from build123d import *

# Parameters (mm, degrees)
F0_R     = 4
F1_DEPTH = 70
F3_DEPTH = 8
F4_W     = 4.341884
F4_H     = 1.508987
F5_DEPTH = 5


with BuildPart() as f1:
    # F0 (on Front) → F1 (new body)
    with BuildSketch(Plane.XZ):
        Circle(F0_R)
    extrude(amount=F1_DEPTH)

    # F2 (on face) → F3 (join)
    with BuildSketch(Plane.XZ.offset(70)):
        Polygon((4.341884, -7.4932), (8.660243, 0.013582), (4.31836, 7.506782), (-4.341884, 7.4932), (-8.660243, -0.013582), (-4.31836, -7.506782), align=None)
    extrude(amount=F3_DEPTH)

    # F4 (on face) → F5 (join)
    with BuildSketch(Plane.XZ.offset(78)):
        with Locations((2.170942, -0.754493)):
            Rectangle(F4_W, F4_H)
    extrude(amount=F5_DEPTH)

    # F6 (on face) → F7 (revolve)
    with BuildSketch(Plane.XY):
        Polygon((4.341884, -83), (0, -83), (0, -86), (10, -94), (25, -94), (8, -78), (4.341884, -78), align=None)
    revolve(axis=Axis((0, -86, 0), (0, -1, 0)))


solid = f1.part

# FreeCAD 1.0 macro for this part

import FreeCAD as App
import Part
import Sketcher

V = App.Vector


def add_polygon(sketch, points):
    """Adds a closed chain of lines whose ends are joined by coincident constraints."""
    first, n = sketch.GeometryCount, len(points)
    for a, b in zip(points, points[1:] + points[:1]):
        sketch.addGeometry(Part.LineSegment(App.Vector(*a, 0), App.Vector(*b, 0)), False)
    for i in range(n):
        sketch.addConstraint(Sketcher.Constraint("Coincident", first + i, 2, first + (i + 1) % n, 1))

doc = App.newDocument("Part")
body = doc.addObject("PartDesign::Body", "Body")

# Sketch on XZ plane
sketch1 = body.newObject("Sketcher::SketchObject", "Sketch")
sketch1.AttachmentSupport = (doc.getObject("XZ_Plane"), [""])
sketch1.MapMode = "FlatFace"
sketch1.addGeometry(Part.Circle(V(0, 0, 0), V(0, 0, 1), 4), False)
sketch1.addConstraint(Sketcher.Constraint("Coincident", 0, 3, -1, 1))
sketch1.addConstraint(Sketcher.Constraint("Diameter", 0, 8.0))
pad1 = body.newObject("PartDesign::Pad", "Pad")
pad1.Profile = sketch1
pad1.Length = 70

# Sketch on XZ plane
sketch2 = body.newObject("Sketcher::SketchObject", "Sketch001")
sketch2.AttachmentSupport = (doc.getObject("XZ_Plane"), [""])
sketch2.MapMode = "FlatFace"
sketch2.AttachmentOffset = App.Placement(V(0, 0, 70), App.Rotation())
add_polygon(sketch2, [(4, -7), (9, 0), (4, 8), (-4, 7), (-9, 0), (-4, -8)])  # lines 0-5
sketch2.addConstraint(Sketcher.Constraint("Symmetric", 0, 2, 3, 2, -1, 1))
sketch2.addConstraint(Sketcher.Constraint("Symmetric", 1, 2, 4, 2, -1, 1))
sketch2.addConstraint(Sketcher.Constraint("Symmetric", 2, 2, 5, 2, -1, 1))
sketch2.addConstraint(Sketcher.Constraint("Equal", 0, 1))
sketch2.addConstraint(Sketcher.Constraint("Equal", 1, 2))
sketch2.addConstraint(Sketcher.Constraint("DistanceY", -1, 1, 2, 2, 7.4932))
sketch2.addConstraint(Sketcher.Constraint("DistanceY", 0, 2, 1, 2, 7.4932))
sketch2.addConstraint(Sketcher.Constraint("DistanceX", -1, 1, 1, 2, 4.31836))
sketch2.addConstraint(Sketcher.Constraint("DistanceX", 3, 2, 2, 2, 4.318359))
pad2 = body.newObject("PartDesign::Pad", "Pad001")
pad2.Profile = sketch2
pad2.Length = 8

# Sketch on XZ plane
sketch3 = body.newObject("Sketcher::SketchObject", "Sketch002")
sketch3.AttachmentSupport = (doc.getObject("XZ_Plane"), [""])
sketch3.MapMode = "FlatFace"
sketch3.AttachmentOffset = App.Placement(V(0, 0, 78), App.Rotation())
add_polygon(sketch3, [(0, 0), (0, -1.5), (4.3, -1.5), (4.3, 0)])  # lines 0-3
sketch3.addConstraint(Sketcher.Constraint("Vertical", 0))
sketch3.addConstraint(Sketcher.Constraint("Horizontal", 1))
sketch3.addConstraint(Sketcher.Constraint("Vertical", 2))
sketch3.addConstraint(Sketcher.Constraint("Horizontal", 3))
sketch3.addConstraint(Sketcher.Constraint("Coincident", 3, 2, -1, 1))
sketch3.addConstraint(Sketcher.Constraint("DistanceX", 1, 1, 1, 2, 4.341884))
sketch3.addConstraint(Sketcher.Constraint("DistanceY", 0, 2, 0, 1, 1.508987))
pad3 = body.newObject("PartDesign::Pad", "Pad002")
pad3.Profile = sketch3
pad3.Length = 5

# Sketch on XY plane
sketch4 = body.newObject("Sketcher::SketchObject", "Sketch003")
sketch4.AttachmentSupport = (doc.getObject("XY_Plane"), [""])
sketch4.MapMode = "FlatFace"
add_polygon(sketch4, [(4.3, -83), (0, -83), (0, -86), (10, -94), (25, -94), (8, -78), (4.3, -78)])  # lines 0-6
sketch4.addConstraint(Sketcher.Constraint("Horizontal", 0))
sketch4.addConstraint(Sketcher.Constraint("Vertical", 1))
sketch4.addConstraint(Sketcher.Constraint("Horizontal", 3))
sketch4.addConstraint(Sketcher.Constraint("Horizontal", 5))
sketch4.addConstraint(Sketcher.Constraint("Vertical", 6))
sketch4.addConstraint(Sketcher.Constraint("PointOnObject", 0, 2, -2))
sketch4.addConstraint(Sketcher.Constraint("DistanceX", 3, 1, 3, 2, 15.0))
sketch4.addConstraint(Sketcher.Constraint("DistanceY", 1, 2, 1, 1, 3.0))
sketch4.addConstraint(Sketcher.Constraint("DistanceY", 6, 2, 6, 1, 5.0))
sketch4.addConstraint(Sketcher.Constraint("DistanceY", 0, 2, -1, 1, 83.0))
sketch4.addConstraint(Sketcher.Constraint("DistanceX", -1, 1, 2, 2, 10.0))
sketch4.addConstraint(Sketcher.Constraint("DistanceY", 2, 2, -1, 1, 94.0))
sketch4.addConstraint(Sketcher.Constraint("DistanceX", -1, 1, 4, 2, 8.0))
sketch4.addConstraint(Sketcher.Constraint("DistanceX", 0, 2, 0, 1, 4.341884))
revolution = body.newObject("PartDesign::Revolution", "Revolution")
revolution.Profile = sketch4
revolution.ReferenceAxis = (sketch4, ["V_Axis"])
revolution.Angle = 360

doc.recompute()
